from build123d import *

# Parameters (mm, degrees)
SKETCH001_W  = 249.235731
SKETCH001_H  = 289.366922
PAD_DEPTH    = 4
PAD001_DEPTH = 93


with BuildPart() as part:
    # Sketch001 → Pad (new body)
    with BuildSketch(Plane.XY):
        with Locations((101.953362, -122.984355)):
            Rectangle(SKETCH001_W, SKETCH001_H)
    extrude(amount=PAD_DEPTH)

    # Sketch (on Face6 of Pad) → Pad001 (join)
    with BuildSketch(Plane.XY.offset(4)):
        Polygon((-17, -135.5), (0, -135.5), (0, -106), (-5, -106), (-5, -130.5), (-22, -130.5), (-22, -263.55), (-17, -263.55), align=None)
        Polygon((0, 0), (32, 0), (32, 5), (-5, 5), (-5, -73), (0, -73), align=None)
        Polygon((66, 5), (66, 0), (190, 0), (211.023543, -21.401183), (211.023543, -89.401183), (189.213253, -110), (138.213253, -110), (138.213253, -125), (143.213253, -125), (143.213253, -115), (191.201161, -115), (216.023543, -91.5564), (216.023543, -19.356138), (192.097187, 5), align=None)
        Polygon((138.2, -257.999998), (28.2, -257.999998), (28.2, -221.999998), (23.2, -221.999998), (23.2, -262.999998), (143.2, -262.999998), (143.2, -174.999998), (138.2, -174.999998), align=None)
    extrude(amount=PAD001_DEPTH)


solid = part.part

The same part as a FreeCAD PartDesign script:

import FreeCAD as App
import Part
import Sketcher
from FreeCAD import Vector
Q = App.Units.Quantity


def add_polygon(sketch, points):
    """Adds a closed chain of lines whose ends are joined by coincident constraints."""
    first, n = sketch.GeometryCount, len(points)
    for a, b in zip(points, points[1:] + points[:1]):
        sketch.addGeometry(Part.LineSegment(App.Vector(*a, 0), App.Vector(*b, 0)), False)
    for i in range(n):
        sketch.addConstraint(Sketcher.Constraint("Coincident", first + i, 2, first + (i + 1) % n, 1))

doc = App.newDocument("Part")
params = doc.addObject("Spreadsheet::Sheet", "Params")
for row, (alias, value) in enumerate([
    ("pad1_length", "4 mm"),
    ("sketch2_width", "17 mm"),
    ("sketch2_width2", "5 mm"),
    ("sketch2_width3", "32 mm"),
    ("sketch2_width4", "124 mm"),
    ("sketch2_width5", "51 mm"),
    ("pad2_length", "93 mm"),
], start=1):
    params.set(f"A{row}", alias)
    params.set(f"B{row}", "=" + value)
    params.setAlias(f"B{row}", alias)

body = doc.addObject("PartDesign::Body", "Body")

# Sketch on XY plane
sketch1 = body.newObject("Sketcher::SketchObject", "Sketch")
sketch1.AttachmentSupport = (doc.getObject("XY_Plane"), [""])
sketch1.MapMode = "FlatFace"
add_polygon(sketch1, [(-23, 22), (-23, -268), (227, -268), (227, 22)])  # lines 0-3
sketch1.addConstraint(Sketcher.Constraint("Vertical", 0))
sketch1.addConstraint(Sketcher.Constraint("Horizontal", 1))
sketch1.addConstraint(Sketcher.Constraint("Vertical", 2))
sketch1.addConstraint(Sketcher.Constraint("Horizontal", 3))
sketch1.addConstraint(Sketcher.Constraint("DistanceX", 1, 1, 1, 2, Q("249.235731 mm")))
sketch1.addConstraint(Sketcher.Constraint("DistanceY", 0, 2, 0, 1, Q("289.366922 mm")))
sketch1.addConstraint(Sketcher.Constraint("DistanceX", 0, 2, -1, 1, Q("22.664503 mm")))
sketch1.addConstraint(Sketcher.Constraint("DistanceY", 0, 2, -1, 1, Q("267.667816 mm")))
pad1 = body.newObject("PartDesign::Pad", "Pad")
pad1.Profile = sketch1
pad1.setExpression("Length", "Params.pad1_length")

# Sketch on XY plane
sketch2 = body.newObject("Sketcher::SketchObject", "Sketch001")
sketch2.AttachmentSupport = (doc.getObject("XY_Plane"), [""])
sketch2.MapMode = "FlatFace"
sketch2.AttachmentOffset = App.Placement(Vector(0, 0, 4), App.Rotation())
add_polygon(sketch2, [(-17, -136), (0, -136), (0, -106), (-5, -106), (-5, -130), (-22, -130), (-22, -264), (-17, -264)])  # lines 0-7
add_polygon(sketch2, [(0, 0), (32, 0), (32, 5), (-5, 5), (-5, -73), (0, -73)])  # lines 8-13
add_polygon(sketch2, [(66, 5), (66, 0), (190, 0), (211, -21), (211, -89), (189, -110), (138, -110), (138, -125), (143, -125), (143, -115), (191, -115), (216, -92), (216, -19), (192, 5)])  # lines 14-27
add_polygon(sketch2, [(138, -258), (28, -258), (28, -222), (23, -222), (23, -263), (143, -263), (143, -175), (138, -175)])  # lines 28-35
sketch2.addConstraint(Sketcher.Constraint("Horizontal", 0))
sketch2.addConstraint(Sketcher.Constraint("Vertical", 1))
sketch2.addConstraint(Sketcher.Constraint("Horizontal", 2))
sketch2.addConstraint(Sketcher.Constraint("Vertical", 3))
sketch2.addConstraint(Sketcher.Constraint("Horizontal", 4))
sketch2.addConstraint(Sketcher.Constraint("Vertical", 5))
sketch2.addConstraint(Sketcher.Constraint("Horizontal", 6))
sketch2.addConstraint(Sketcher.Constraint("Vertical", 7))
sketch2.addConstraint(Sketcher.Constraint("Horizontal", 8))
sketch2.addConstraint(Sketcher.Constraint("Vertical", 9))
sketch2.addConstraint(Sketcher.Constraint("Horizontal", 10))
sketch2.addConstraint(Sketcher.Constraint("Vertical", 11))
sketch2.addConstraint(Sketcher.Constraint("Horizontal", 12))
sketch2.addConstraint(Sketcher.Constraint("Vertical", 13))
sketch2.addConstraint(Sketcher.Constraint("Vertical", 14))
sketch2.addConstraint(Sketcher.Constraint("Horizontal", 15))
sketch2.addConstraint(Sketcher.Constraint("Vertical", 17))
sketch2.addConstraint(Sketcher.Constraint("Horizontal", 19))
sketch2.addConstraint(Sketcher.Constraint("Vertical", 20))
sketch2.addConstraint(Sketcher.Constraint("Horizontal", 21))
sketch2.addConstraint(Sketcher.Constraint("Vertical", 22))
sketch2.addConstraint(Sketcher.Constraint("Horizontal", 23))
sketch2.addConstraint(Sketcher.Constraint("Vertical", 25))
sketch2.addConstraint(Sketcher.Constraint("Horizontal", 27))
sketch2.addConstraint(Sketcher.Constraint("Horizontal", 28))
sketch2.addConstraint(Sketcher.Constraint("Vertical", 29))
sketch2.addConstraint(Sketcher.Constraint("Horizontal", 30))
sketch2.addConstraint(Sketcher.Constraint("Vertical", 31))
sketch2.addConstraint(Sketcher.Constraint("Horizontal", 32))
sketch2.addConstraint(Sketcher.Constraint("Vertical", 33))
sketch2.addConstraint(Sketcher.Constraint("Horizontal", 34))
sketch2.addConstraint(Sketcher.Constraint("Vertical", 35))
sketch2.addConstraint(Sketcher.Constraint("Coincident", 13, 2, -1, 1))
sketch2.addConstraint(Sketcher.Constraint("PointOnObject", 0, 2, -2))
sketch2.addConstraint(Sketcher.Constraint("PointOnObject", 14, 2, -1))
sketch2.addConstraint(Sketcher.Constraint("Parallel", 18, 24))
sketch2.addConstraint(Sketcher.Constraint("Parallel", 16, 26))
sketch2.addConstraint(Sketcher.Constraint("Horizontal", 10, 2, 26, 2))
sketch2.addConstraint(Sketcher.Constraint("Vertical", 3, 2, 10, 2))
sketch2.addConstraint(Sketcher.Constraint("Equal", 0, 4))
sketch2.addConstraint(Sketcher.Constraint("Equal", 12, 21))
sketch2.addConstraint(Sketcher.Constraint("Equal", 21, 30))
sketch2.addConstraint(Sketcher.Constraint("Equal", 30, 34))
sketch2.addConstraint(Sketcher.Constraint("Equal", 34, 9))
sketch2.addConstraint(Sketcher.Constraint("Equal", 16, 18))
sketch2.addConstraint(Sketcher.Constraint("DistanceX", 0, 1, 0, 2, Q("17 mm")))
sketch2.addConstraint(Sketcher.Constraint("DistanceX", 2, 2, 2, 1, Q("5 mm")))
sketch2.addConstraint(Sketcher.Constraint("DistanceX", 8, 1, 8, 2, Q("32 mm")))
sketch2.addConstraint(Sketcher.Constraint("DistanceX", 15, 1, 15, 2, Q("124 mm")))
sketch2.addConstraint(Sketcher.Constraint("DistanceX", 19, 2, 19, 1, Q("51 mm")))
sketch2.addConstraint(Sketcher.Constraint("DistanceX", 28, 2, 28, 1, Q("110 mm")))
sketch2.addConstraint(Sketcher.Constraint("DistanceY", 11, 2, 11, 1, Q("78 mm")))
sketch2.addConstraint(Sketcher.Constraint("DistanceY", 17, 2, 17, 1, Q("68 mm")))
sketch2.addConstraint(Sketcher.Constraint("DistanceY", 20, 2, 20, 1, Q("15 mm")))
sketch2.addConstraint(Sketcher.Constraint("DistanceY", 22, 1, 22, 2, Q("10 mm")))
sketch2.addConstraint(Sketcher.Constraint("DistanceY", 29, 1, 29, 2, Q("36 mm")))
sketch2.addConstraint(Sketcher.Constraint("DistanceY", 31, 2, 31, 1, Q("41 mm")))
sketch2.addConstraint(Sketcher.Constraint("DistanceY", 33, 1, 33, 2, Q("88 mm")))
sketch2.addConstraint(Sketcher.Constraint("Distance", 16, Q("30 mm")))
sketch2.addConstraint(Sketcher.Constraint("DistanceY", 1, 1, 1, 2, Q("29.5 mm")))
sketch2.addConstraint(Sketcher.Constraint("DistanceY", 3, 2, 3, 1, Q("24.5 mm")))
sketch2.addConstraint(Sketcher.Constraint("DistanceY", 1, 2, -1, 1, Q("106 mm")))
sketch2.addConstraint(Sketcher.Constraint("DistanceX", -1, 1, 14, 2, Q("66 mm")))
sketch2.addConstraint(Sketcher.Constraint("DistanceY", 18, 2, -1, 1, Q("110 mm")))
sketch2.addConstraint(Sketcher.Constraint("DistanceY", 28, 2, -1, 1, Q("257.999998 mm")))
sketch2.addConstraint(Sketcher.Constraint("DistanceX", 17, 2, 24, 2, Q("5 mm")))
sketch2.addConstraint(Sketcher.Constraint("DistanceY", 5, 2, 5, 1, Q("133.05 mm")))
sketch2.addConstraint(Sketcher.Constraint("DistanceX", -1, 1, 28, 2, Q("28.2 mm")))
sketch2.addConstraint(Sketcher.Constraint("Angle", 16, Q("-45.51 deg")))
sketch2.addConstraint(Sketcher.Constraint("DistanceX", 23, 1, 23, 2, Q("47.987908 mm")))
sketch2.addConstraint(Sketcher.Constraint("DistanceY", 25, 1, 25, 2, Q("72.200262 mm")))
sketch2.setExpression("Constraints[81]", "Params.sketch2_width")
sketch2.setExpression("Constraints[82]", "Params.sketch2_width2")
sketch2.setExpression("Constraints[83]", "Params.sketch2_width3")
sketch2.setExpression("Constraints[84]", "Params.sketch2_width4")
sketch2.setExpression("Constraints[85]", "Params.sketch2_width5")
pad2 = body.newObject("PartDesign::Pad", "Pad001")
pad2.Profile = sketch2
pad2.setExpression("Length", "Params.pad2_length")

doc.recompute()
